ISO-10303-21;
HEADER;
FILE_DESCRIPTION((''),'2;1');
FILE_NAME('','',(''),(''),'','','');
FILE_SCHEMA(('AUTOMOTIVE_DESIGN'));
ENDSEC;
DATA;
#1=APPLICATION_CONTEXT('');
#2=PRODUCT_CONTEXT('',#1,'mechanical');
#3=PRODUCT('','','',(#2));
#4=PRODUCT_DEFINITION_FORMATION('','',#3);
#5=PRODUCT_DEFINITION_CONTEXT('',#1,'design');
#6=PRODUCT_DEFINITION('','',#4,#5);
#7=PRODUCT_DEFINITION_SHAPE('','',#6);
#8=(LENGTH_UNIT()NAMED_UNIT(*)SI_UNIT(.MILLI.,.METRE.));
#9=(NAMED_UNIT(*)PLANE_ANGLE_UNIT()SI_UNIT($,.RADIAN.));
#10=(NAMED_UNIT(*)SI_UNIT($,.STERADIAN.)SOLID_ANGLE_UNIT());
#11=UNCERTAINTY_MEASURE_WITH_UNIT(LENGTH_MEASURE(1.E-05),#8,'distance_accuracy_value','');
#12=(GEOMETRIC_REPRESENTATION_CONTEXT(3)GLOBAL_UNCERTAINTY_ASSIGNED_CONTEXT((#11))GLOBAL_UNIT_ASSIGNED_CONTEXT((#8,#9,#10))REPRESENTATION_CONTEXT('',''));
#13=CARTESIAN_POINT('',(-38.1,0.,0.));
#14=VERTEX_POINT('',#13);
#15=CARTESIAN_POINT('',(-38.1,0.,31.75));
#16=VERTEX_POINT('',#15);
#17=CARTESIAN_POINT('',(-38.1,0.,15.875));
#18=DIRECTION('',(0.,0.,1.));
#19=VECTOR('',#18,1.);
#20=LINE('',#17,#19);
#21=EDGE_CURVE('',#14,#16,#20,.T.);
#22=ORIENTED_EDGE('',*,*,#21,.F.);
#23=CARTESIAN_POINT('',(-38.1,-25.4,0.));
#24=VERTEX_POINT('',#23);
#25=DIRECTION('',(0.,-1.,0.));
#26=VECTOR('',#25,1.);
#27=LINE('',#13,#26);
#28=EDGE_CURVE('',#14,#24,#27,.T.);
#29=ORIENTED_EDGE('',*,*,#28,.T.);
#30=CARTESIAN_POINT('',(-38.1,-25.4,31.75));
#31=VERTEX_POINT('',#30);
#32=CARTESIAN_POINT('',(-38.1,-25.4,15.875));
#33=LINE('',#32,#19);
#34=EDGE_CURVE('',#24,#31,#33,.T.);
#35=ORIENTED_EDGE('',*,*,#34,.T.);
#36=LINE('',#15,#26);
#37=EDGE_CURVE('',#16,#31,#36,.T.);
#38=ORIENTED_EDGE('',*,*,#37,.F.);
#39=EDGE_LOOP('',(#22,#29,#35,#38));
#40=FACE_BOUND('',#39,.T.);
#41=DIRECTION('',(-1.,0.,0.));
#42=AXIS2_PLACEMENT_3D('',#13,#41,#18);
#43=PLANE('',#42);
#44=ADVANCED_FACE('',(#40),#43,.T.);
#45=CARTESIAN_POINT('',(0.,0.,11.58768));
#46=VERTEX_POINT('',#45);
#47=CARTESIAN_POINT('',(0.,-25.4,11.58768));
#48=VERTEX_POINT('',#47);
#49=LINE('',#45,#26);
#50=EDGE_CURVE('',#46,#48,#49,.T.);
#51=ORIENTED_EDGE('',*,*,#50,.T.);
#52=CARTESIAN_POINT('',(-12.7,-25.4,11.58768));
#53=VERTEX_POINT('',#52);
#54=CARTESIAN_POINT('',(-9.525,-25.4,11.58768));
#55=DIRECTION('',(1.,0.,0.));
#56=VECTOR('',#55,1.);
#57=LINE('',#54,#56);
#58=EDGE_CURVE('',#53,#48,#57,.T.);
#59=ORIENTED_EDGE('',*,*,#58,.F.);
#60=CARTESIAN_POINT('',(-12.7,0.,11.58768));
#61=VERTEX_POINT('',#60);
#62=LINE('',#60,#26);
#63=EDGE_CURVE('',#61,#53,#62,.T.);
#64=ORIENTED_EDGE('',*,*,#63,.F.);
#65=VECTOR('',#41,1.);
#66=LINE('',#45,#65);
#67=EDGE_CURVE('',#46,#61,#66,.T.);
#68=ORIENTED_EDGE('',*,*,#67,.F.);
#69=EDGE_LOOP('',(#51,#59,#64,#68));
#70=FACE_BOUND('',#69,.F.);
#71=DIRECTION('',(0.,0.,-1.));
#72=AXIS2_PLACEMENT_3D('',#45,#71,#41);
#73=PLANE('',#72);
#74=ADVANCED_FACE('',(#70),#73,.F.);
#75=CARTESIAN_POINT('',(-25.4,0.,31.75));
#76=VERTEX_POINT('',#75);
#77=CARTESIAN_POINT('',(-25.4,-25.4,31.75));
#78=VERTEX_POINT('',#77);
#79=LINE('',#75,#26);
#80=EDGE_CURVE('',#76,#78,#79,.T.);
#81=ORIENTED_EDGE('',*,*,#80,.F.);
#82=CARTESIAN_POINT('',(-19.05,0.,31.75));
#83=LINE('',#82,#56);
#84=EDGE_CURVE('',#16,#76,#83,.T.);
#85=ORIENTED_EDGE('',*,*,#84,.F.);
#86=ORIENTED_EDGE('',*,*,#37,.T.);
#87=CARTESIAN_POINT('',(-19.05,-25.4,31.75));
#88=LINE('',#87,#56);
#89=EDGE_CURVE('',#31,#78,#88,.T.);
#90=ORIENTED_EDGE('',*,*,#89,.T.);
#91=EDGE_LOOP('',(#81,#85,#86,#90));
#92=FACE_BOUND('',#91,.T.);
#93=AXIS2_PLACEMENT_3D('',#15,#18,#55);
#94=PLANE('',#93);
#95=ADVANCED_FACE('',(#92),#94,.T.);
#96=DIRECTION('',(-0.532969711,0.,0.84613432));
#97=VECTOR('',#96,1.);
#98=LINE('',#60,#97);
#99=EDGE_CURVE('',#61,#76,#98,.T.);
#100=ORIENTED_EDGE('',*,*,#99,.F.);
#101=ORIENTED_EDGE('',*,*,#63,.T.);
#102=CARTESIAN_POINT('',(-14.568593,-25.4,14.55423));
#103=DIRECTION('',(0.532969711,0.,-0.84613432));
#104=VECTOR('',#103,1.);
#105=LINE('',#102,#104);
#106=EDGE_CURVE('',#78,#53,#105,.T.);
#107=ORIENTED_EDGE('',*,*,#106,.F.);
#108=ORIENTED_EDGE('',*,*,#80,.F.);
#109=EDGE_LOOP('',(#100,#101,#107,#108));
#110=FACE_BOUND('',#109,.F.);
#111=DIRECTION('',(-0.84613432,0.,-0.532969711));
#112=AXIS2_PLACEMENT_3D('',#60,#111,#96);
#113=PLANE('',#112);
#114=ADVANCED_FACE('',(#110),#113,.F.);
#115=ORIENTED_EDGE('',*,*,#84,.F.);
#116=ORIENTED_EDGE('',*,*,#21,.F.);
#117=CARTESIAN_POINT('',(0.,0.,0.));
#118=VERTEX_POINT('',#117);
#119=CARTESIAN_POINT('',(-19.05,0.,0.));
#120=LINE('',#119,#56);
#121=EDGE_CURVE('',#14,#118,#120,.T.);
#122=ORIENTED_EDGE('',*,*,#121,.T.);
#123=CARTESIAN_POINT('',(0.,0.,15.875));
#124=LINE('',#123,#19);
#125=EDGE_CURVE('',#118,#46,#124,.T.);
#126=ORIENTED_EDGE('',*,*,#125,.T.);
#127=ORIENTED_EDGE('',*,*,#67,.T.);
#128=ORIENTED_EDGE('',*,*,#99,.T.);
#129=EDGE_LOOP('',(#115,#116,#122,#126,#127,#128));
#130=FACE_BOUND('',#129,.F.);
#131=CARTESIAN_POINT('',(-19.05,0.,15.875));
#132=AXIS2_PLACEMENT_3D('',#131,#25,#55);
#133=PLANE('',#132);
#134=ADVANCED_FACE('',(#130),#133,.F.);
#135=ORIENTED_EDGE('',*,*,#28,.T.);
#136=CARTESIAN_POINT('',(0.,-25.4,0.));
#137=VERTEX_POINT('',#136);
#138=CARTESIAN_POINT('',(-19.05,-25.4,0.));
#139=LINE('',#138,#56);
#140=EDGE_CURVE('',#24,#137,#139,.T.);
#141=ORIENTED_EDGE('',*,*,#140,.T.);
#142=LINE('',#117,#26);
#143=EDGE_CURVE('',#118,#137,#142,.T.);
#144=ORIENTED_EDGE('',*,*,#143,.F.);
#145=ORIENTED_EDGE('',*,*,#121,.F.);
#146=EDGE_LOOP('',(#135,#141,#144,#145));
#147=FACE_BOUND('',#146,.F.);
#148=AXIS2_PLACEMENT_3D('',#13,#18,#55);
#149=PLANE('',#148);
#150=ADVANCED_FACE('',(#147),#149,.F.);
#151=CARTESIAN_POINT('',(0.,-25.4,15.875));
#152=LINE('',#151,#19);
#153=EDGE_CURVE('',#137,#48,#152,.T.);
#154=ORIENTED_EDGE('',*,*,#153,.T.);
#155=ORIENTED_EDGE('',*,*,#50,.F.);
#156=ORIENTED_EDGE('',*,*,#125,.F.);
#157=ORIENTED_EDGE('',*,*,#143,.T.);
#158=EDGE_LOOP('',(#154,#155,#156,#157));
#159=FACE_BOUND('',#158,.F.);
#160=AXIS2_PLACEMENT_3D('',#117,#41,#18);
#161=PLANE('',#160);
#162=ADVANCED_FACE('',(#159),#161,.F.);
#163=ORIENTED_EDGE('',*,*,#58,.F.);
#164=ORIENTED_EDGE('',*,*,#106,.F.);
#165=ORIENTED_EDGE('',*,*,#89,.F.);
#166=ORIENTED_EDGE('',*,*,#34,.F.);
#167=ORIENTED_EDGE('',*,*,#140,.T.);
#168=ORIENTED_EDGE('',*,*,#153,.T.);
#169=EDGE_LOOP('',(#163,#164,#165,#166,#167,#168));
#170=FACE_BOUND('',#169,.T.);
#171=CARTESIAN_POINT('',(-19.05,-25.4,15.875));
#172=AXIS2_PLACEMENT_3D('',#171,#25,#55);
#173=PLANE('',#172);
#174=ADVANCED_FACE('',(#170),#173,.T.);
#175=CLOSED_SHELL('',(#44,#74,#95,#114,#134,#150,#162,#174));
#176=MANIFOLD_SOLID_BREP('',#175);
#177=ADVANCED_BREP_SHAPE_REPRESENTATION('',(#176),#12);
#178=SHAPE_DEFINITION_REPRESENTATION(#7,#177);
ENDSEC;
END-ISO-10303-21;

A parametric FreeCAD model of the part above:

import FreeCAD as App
import Part
import Sketcher

V = App.Vector
Q = App.Units.Quantity


def add_polygon(sketch, points):
    """Adds a closed chain of lines whose ends are joined by coincident constraints."""
    first, n = sketch.GeometryCount, len(points)
    for a, b in zip(points, points[1:] + points[:1]):
        sketch.addGeometry(Part.LineSegment(App.Vector(*a, 0), App.Vector(*b, 0)), False)
    for i in range(n):
        sketch.addConstraint(Sketcher.Constraint("Coincident", first + i, 2, first + (i + 1) % n, 1))

doc = App.newDocument("Part")
body = doc.addObject("PartDesign::Body", "Body")

# Sketch on XZ plane
sketch1 = doc.addObject("Sketcher::SketchObject", "Sketch")
body.addObject(sketch1)
sketch1.AttachmentSupport = (doc.XZ_Plane, [""])
sketch1.MapMode = "FlatFace"
add_polygon(sketch1, [(-38, 32), (-38, 0), (0, 0), (0, 32)])  # lines 0-3
sketch1.addConstraint([
    Sketcher.Constraint("Vertical", 0),
    Sketcher.Constraint("Horizontal", 1),
    Sketcher.Constraint("Vertical", 2),
    Sketcher.Constraint("Horizontal", 3),
    Sketcher.Constraint("Coincident", 1, 2, -1, 1),
    Sketcher.Constraint("DistanceX", 1, 1, 1, 2, Q("1.5 in")),
    Sketcher.Constraint("DistanceY", 0, 2, 0, 1, Q("1.25 in")),
])
pad1 = doc.addObject("PartDesign::Pad", "Pad")
body.addObject(pad1)
pad1.Profile = sketch1
pad1.Length = Q("1 in")

# Sketch on XZ plane
sketch2 = doc.addObject("Sketcher::SketchObject", "Sketch001")
body.addObject(sketch2)
sketch2.AttachmentSupport = (doc.XZ_Plane, [""])
sketch2.MapMode = "FlatFace"
add_polygon(sketch2, [(0, 32), (0, 12), (-13, 12), (-25, 32)])  # lines 0-3
sketch2.addConstraint([
    Sketcher.Constraint("Vertical", 0),
    Sketcher.Constraint("Horizontal", 1),
    Sketcher.Constraint("Horizontal", 3),
    Sketcher.Constraint("PointOnObject", 0, 2, -2),
    Sketcher.Constraint("DistanceX", 3, 1, 3, 2, Q("1 in")),
    Sketcher.Constraint("DistanceX", 1, 2, 1, 1, Q("0.5 in")),
    Sketcher.Constraint("DistanceY", -1, 1, 2, 2, Q("1.25 in")),
    Sketcher.Constraint("DistanceY", 0, 2, 0, 1, Q("20.16232 mm")),
])
pocket1 = doc.addObject("PartDesign::Pocket", "Pocket")
body.addObject(pocket1)
pocket1.Profile = sketch2
pocket1.Type = "ThroughAll"
pocket1.Reversed = True

doc.recompute()
